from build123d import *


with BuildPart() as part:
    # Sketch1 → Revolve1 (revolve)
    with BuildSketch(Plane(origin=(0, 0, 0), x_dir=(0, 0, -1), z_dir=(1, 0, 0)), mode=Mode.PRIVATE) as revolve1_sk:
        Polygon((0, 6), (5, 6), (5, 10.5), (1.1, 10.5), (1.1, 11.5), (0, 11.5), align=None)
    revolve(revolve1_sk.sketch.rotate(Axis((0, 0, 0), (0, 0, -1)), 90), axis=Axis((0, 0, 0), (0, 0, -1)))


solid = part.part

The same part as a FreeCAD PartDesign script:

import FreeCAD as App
import Part
import Sketcher

doc = App.newDocument("Part")
body = doc.addObject("PartDesign::Body", "Body")

# Sketch on YZ plane
sketch1 = body.newObject("Sketcher::SketchObject", "Sketch")
sketch1.AttachmentSupport = (doc.getObject("YZ_Plane"), [""])
sketch1.MapMode = "FlatFace"
sketch1.addGeometry([
    Part.LineSegment(App.Vector(6, 0, 0), App.Vector(6, -5, 0)),  # 0
    Part.LineSegment(App.Vector(6, -5, 0), App.Vector(10.5, -5, 0)),  # 1
    Part.LineSegment(App.Vector(10.5, -5, 0), App.Vector(10.5, -1.1, 0)),  # 2
    Part.LineSegment(App.Vector(10.5, -1.1, 0), App.Vector(11.5, -1.1, 0)),  # 3
    Part.LineSegment(App.Vector(11.5, -1.1, 0), App.Vector(11.5, 0, 0)),  # 4
    Part.LineSegment(App.Vector(11.5, 0, 0), App.Vector(6, 0, 0)),  # 5
], False)
sketch1.addConstraint([
    Sketcher.Constraint("Coincident", 0, 2, 1, 1),
    Sketcher.Constraint("Coincident", 1, 2, 2, 1),
    Sketcher.Constraint("Coincident", 2, 2, 3, 1),
    Sketcher.Constraint("Coincident", 3, 2, 4, 1),
    Sketcher.Constraint("Coincident", 4, 2, 5, 1),
    Sketcher.Constraint("Coincident", 5, 2, 0, 1),
    Sketcher.Constraint("Vertical", 0),
    Sketcher.Constraint("Horizontal", 1),
    Sketcher.Constraint("Vertical", 2),
    Sketcher.Constraint("Horizontal", 3),
    Sketcher.Constraint("Vertical", 4),
    Sketcher.Constraint("Horizontal", 5),
    Sketcher.Constraint("PointOnObject", 4, 2, -1),
    Sketcher.Constraint("DistanceX", 3, 1, 3, 2, 1.0),
    Sketcher.Constraint("DistanceY", 0, 2, 0, 1, 5.0),
    Sketcher.Constraint("DistanceX", 1, 1, 1, 2, 4.5),
    Sketcher.Constraint("DistanceY", 2, 1, 2, 2, 3.9),
    Sketcher.Constraint("DistanceX", -1, 1, 0, 2, 6.0),
])
revolution = body.newObject("PartDesign::Revolution", "Revolution")
revolution.Profile = sketch1
revolution.ReferenceAxis = (sketch1, ["V_Axis"])
revolution.Angle = 360

doc.recompute()
